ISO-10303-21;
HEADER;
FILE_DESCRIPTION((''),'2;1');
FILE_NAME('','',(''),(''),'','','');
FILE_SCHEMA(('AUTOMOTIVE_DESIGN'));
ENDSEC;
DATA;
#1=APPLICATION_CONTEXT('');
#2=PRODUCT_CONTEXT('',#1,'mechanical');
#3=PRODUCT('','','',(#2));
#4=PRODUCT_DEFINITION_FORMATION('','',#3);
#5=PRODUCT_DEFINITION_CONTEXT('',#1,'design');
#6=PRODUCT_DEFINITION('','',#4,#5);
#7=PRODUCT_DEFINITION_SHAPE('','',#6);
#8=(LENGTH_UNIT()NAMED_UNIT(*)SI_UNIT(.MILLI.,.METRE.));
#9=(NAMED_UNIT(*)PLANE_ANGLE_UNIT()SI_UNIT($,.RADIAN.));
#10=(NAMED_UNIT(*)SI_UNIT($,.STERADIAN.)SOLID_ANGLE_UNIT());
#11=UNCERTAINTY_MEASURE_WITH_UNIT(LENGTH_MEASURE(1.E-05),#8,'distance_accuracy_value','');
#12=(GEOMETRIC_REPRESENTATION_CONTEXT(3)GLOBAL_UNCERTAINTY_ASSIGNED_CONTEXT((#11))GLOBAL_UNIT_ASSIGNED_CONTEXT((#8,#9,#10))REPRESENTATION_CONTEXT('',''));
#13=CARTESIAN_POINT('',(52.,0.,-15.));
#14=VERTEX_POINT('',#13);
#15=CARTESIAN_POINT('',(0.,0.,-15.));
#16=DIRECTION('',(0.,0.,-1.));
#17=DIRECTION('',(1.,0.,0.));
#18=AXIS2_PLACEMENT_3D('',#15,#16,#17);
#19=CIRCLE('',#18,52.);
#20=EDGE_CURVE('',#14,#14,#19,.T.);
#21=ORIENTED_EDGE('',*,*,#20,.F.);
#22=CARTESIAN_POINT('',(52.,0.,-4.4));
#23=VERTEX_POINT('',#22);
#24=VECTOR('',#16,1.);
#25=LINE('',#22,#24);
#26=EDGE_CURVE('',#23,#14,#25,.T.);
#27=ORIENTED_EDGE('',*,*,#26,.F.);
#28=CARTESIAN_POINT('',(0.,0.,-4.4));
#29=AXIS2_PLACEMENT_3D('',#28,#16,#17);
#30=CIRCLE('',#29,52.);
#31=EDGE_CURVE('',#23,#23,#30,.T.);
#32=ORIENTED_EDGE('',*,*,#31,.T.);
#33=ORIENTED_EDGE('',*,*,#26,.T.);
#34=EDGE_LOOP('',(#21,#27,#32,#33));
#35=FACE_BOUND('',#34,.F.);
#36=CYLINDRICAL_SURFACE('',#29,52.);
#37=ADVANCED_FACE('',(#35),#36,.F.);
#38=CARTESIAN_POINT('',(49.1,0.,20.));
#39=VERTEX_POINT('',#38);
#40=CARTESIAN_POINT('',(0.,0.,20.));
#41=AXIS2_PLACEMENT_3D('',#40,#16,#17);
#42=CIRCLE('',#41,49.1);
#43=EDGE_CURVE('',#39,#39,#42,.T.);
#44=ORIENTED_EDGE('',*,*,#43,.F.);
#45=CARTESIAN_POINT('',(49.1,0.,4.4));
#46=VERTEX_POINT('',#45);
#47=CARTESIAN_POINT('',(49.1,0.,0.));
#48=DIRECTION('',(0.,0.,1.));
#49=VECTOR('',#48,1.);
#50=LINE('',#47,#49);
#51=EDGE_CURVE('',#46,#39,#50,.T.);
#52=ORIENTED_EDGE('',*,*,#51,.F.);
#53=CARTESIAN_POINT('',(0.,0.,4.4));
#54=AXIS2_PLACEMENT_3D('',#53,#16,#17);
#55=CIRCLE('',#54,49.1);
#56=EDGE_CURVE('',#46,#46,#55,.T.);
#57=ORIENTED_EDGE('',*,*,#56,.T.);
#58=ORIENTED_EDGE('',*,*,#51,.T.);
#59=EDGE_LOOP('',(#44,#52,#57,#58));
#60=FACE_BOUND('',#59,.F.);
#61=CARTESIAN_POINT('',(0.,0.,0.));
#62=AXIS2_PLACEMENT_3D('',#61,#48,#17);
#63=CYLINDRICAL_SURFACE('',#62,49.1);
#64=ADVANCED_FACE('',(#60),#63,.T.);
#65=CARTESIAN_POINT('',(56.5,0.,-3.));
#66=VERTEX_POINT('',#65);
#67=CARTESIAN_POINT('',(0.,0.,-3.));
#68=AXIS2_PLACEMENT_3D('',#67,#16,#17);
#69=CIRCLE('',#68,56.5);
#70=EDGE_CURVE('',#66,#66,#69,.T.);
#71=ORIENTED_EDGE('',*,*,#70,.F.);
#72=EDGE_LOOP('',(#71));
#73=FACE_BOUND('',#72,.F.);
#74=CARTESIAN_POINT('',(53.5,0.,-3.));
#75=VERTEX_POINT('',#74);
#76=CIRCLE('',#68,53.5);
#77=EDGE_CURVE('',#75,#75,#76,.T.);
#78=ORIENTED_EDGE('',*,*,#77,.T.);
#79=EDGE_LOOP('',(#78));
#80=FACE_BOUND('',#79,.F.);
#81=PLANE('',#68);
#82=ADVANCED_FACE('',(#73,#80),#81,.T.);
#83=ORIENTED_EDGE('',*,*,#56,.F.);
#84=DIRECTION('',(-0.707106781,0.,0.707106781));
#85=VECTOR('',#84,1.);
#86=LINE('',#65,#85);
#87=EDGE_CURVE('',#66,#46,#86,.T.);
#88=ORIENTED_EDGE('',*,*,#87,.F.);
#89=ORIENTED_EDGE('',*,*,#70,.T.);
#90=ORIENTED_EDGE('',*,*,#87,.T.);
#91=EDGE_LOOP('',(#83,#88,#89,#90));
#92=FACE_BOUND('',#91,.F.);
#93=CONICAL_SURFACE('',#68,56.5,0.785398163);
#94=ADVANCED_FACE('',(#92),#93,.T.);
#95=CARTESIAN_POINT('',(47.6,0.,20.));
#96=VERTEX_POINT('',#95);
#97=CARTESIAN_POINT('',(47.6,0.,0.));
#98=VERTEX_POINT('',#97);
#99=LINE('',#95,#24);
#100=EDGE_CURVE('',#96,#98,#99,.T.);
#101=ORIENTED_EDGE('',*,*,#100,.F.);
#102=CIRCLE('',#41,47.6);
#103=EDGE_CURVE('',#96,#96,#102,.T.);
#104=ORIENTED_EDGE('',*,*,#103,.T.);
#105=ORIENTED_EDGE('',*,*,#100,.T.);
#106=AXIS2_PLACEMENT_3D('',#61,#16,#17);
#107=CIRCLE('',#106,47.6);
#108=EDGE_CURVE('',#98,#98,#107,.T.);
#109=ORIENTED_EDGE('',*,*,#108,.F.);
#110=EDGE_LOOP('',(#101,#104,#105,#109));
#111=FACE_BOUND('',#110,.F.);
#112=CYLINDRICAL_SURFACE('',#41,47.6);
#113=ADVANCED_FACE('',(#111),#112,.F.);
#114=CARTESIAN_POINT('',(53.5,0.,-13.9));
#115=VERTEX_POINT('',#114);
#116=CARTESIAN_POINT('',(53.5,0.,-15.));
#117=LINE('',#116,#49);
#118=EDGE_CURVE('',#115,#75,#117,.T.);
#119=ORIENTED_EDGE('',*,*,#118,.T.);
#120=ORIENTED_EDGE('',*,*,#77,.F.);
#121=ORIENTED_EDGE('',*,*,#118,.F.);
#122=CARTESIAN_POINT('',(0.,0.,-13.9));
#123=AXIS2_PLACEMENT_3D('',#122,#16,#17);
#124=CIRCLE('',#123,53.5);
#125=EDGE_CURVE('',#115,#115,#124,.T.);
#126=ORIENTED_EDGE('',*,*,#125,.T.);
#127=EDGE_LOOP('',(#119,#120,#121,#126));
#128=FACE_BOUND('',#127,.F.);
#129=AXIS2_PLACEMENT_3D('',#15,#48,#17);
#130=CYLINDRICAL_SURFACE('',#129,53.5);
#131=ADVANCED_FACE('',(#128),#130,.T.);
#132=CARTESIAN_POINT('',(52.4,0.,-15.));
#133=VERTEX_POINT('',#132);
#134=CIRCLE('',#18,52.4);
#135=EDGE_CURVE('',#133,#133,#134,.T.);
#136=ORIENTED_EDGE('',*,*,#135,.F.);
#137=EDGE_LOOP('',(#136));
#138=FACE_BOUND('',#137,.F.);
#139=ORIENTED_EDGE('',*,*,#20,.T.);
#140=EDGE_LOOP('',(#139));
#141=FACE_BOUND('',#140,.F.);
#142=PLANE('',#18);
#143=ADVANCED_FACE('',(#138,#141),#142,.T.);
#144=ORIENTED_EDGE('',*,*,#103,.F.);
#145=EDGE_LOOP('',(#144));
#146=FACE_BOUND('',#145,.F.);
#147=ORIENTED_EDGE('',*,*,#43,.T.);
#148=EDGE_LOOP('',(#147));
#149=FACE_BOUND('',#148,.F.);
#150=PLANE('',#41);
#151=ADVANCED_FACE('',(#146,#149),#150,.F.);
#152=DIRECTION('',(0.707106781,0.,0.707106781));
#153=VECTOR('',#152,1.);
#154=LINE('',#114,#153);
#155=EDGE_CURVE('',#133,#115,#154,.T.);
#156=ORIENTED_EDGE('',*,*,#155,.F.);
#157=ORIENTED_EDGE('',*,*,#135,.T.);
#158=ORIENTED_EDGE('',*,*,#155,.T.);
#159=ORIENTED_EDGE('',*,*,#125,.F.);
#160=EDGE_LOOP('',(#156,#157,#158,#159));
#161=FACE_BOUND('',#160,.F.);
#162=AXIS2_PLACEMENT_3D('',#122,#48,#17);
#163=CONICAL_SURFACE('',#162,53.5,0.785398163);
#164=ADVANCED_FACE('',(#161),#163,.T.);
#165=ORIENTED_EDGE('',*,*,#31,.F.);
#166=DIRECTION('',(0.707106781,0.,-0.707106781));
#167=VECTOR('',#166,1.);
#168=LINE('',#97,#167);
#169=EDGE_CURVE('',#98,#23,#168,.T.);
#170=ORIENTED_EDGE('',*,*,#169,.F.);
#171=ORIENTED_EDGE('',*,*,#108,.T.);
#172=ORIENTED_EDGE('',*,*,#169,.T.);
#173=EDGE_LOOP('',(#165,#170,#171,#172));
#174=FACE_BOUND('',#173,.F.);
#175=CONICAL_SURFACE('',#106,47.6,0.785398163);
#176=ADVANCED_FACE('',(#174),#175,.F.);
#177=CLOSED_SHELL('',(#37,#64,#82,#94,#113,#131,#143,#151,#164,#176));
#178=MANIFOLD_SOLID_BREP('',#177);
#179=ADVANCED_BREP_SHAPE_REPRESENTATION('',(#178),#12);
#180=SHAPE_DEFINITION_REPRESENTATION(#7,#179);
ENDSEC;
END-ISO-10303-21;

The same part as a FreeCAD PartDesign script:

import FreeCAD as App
import Part
import Sketcher

V = App.Vector
Q = App.Units.Quantity


def edges_at(feature, points):
    """Names of the edges that pass closest to the given points."""
    edges = feature.Shape.Edges
    near = lambda p: min(range(len(edges)), key=lambda i: edges[i].distToShape(Part.Vertex(*p))[0])
    return sorted({f"Edge{near(p) + 1}" for p in points})

doc = App.newDocument("Part")
body = doc.addObject("PartDesign::Body", "Body")

# Sketch on XZ plane
sketch1 = body.newObject("Sketcher::SketchObject", "Sketch")
sketch1.AttachmentSupport = (doc.getObject("XZ_Plane"), [""])
sketch1.MapMode = "FlatFace"
sketch1.addGeometry(Part.LineSegment(V(49.1, 20, 0), V(47.6, 20, 0)), False)
sketch1.addGeometry(Part.LineSegment(V(47.6, 20, 0), V(47.6, 0, 0)), False)
sketch1.addGeometry(Part.LineSegment(V(47.6, 0, 0), V(52, -4.4, 0)), False)
sketch1.addGeometry(Part.LineSegment(V(52, -4.4, 0), V(52, -15, 0)), False)
sketch1.addGeometry(Part.LineSegment(V(52, -15, 0), V(53.5, -15, 0)), False)
sketch1.addGeometry(Part.LineSegment(V(53.5, -15, 0), V(53.5, -3, 0)), False)
sketch1.addGeometry(Part.LineSegment(V(53.5, -3, 0), V(56.5, -3, 0)), False)
sketch1.addGeometry(Part.LineSegment(V(56.5, -3, 0), V(49.1, 4.4, 0)), False)
sketch1.addGeometry(Part.LineSegment(V(49.1, 4.4, 0), V(49.1, 20, 0)), False)
sketch1.addConstraint(Sketcher.Constraint("Coincident", 0, 2, 1, 1))
sketch1.addConstraint(Sketcher.Constraint("Coincident", 1, 2, 2, 1))
sketch1.addConstraint(Sketcher.Constraint("Coincident", 2, 2, 3, 1))
sketch1.addConstraint(Sketcher.Constraint("Coincident", 3, 2, 4, 1))
sketch1.addConstraint(Sketcher.Constraint("Coincident", 4, 2, 5, 1))
sketch1.addConstraint(Sketcher.Constraint("Coincident", 5, 2, 6, 1))
sketch1.addConstraint(Sketcher.Constraint("Coincident", 6, 2, 7, 1))
sketch1.addConstraint(Sketcher.Constraint("Coincident", 7, 2, 8, 1))
sketch1.addConstraint(Sketcher.Constraint("Coincident", 8, 2, 0, 1))
sketch1.addConstraint(Sketcher.Constraint("Horizontal", 0))
sketch1.addConstraint(Sketcher.Constraint("Vertical", 1))
sketch1.addConstraint(Sketcher.Constraint("Vertical", 3))
sketch1.addConstraint(Sketcher.Constraint("Horizontal", 4))
sketch1.addConstraint(Sketcher.Constraint("Vertical", 5))
sketch1.addConstraint(Sketcher.Constraint("Horizontal", 6))
sketch1.addConstraint(Sketcher.Constraint("Vertical", 8))
sketch1.addConstraint(Sketcher.Constraint("PointOnObject", 1, 2, -1))
sketch1.addConstraint(Sketcher.Constraint("Parallel", 2, 7))
sketch1.addConstraint(Sketcher.Constraint("Equal", 0, 4))
sketch1.addConstraint(Sketcher.Constraint("DistanceX", 6, 1, 6, 2, Q("3 mm")))
sketch1.addConstraint(Sketcher.Constraint("DistanceY", 1, 2, 1, 1, Q("20 mm")))
sketch1.addConstraint(Sketcher.Constraint("DistanceY", 5, 1, 5, 2, Q("12 mm")))
sketch1.addConstraint(Sketcher.Constraint("Angle", 2, Q("-45 deg")))
sketch1.addConstraint(Sketcher.Constraint("DistanceX", 0, 2, 0, 1, Q("1.5 mm")))
sketch1.addConstraint(Sketcher.Constraint("DistanceY", 3, 2, 3, 1, Q("10.6 mm")))
sketch1.addConstraint(Sketcher.Constraint("DistanceX", -1, 1, 2, 2, Q("52 mm")))
sketch1.addConstraint(Sketcher.Constraint("DistanceY", 3, 2, -1, 1, Q("15 mm")))
revolution = body.newObject("PartDesign::Revolution", "Revolution")
revolution.Profile = sketch1
revolution.ReferenceAxis = (sketch1, ["V_Axis"])
revolution.Angle = 360
doc.recompute()

chamfer = body.newObject("PartDesign::Chamfer", "Chamfer")
chamfer.Base = (revolution, edges_at(revolution, [(-53.5, 0, -15)]))
chamfer.Size = 1.1

doc.recompute()
